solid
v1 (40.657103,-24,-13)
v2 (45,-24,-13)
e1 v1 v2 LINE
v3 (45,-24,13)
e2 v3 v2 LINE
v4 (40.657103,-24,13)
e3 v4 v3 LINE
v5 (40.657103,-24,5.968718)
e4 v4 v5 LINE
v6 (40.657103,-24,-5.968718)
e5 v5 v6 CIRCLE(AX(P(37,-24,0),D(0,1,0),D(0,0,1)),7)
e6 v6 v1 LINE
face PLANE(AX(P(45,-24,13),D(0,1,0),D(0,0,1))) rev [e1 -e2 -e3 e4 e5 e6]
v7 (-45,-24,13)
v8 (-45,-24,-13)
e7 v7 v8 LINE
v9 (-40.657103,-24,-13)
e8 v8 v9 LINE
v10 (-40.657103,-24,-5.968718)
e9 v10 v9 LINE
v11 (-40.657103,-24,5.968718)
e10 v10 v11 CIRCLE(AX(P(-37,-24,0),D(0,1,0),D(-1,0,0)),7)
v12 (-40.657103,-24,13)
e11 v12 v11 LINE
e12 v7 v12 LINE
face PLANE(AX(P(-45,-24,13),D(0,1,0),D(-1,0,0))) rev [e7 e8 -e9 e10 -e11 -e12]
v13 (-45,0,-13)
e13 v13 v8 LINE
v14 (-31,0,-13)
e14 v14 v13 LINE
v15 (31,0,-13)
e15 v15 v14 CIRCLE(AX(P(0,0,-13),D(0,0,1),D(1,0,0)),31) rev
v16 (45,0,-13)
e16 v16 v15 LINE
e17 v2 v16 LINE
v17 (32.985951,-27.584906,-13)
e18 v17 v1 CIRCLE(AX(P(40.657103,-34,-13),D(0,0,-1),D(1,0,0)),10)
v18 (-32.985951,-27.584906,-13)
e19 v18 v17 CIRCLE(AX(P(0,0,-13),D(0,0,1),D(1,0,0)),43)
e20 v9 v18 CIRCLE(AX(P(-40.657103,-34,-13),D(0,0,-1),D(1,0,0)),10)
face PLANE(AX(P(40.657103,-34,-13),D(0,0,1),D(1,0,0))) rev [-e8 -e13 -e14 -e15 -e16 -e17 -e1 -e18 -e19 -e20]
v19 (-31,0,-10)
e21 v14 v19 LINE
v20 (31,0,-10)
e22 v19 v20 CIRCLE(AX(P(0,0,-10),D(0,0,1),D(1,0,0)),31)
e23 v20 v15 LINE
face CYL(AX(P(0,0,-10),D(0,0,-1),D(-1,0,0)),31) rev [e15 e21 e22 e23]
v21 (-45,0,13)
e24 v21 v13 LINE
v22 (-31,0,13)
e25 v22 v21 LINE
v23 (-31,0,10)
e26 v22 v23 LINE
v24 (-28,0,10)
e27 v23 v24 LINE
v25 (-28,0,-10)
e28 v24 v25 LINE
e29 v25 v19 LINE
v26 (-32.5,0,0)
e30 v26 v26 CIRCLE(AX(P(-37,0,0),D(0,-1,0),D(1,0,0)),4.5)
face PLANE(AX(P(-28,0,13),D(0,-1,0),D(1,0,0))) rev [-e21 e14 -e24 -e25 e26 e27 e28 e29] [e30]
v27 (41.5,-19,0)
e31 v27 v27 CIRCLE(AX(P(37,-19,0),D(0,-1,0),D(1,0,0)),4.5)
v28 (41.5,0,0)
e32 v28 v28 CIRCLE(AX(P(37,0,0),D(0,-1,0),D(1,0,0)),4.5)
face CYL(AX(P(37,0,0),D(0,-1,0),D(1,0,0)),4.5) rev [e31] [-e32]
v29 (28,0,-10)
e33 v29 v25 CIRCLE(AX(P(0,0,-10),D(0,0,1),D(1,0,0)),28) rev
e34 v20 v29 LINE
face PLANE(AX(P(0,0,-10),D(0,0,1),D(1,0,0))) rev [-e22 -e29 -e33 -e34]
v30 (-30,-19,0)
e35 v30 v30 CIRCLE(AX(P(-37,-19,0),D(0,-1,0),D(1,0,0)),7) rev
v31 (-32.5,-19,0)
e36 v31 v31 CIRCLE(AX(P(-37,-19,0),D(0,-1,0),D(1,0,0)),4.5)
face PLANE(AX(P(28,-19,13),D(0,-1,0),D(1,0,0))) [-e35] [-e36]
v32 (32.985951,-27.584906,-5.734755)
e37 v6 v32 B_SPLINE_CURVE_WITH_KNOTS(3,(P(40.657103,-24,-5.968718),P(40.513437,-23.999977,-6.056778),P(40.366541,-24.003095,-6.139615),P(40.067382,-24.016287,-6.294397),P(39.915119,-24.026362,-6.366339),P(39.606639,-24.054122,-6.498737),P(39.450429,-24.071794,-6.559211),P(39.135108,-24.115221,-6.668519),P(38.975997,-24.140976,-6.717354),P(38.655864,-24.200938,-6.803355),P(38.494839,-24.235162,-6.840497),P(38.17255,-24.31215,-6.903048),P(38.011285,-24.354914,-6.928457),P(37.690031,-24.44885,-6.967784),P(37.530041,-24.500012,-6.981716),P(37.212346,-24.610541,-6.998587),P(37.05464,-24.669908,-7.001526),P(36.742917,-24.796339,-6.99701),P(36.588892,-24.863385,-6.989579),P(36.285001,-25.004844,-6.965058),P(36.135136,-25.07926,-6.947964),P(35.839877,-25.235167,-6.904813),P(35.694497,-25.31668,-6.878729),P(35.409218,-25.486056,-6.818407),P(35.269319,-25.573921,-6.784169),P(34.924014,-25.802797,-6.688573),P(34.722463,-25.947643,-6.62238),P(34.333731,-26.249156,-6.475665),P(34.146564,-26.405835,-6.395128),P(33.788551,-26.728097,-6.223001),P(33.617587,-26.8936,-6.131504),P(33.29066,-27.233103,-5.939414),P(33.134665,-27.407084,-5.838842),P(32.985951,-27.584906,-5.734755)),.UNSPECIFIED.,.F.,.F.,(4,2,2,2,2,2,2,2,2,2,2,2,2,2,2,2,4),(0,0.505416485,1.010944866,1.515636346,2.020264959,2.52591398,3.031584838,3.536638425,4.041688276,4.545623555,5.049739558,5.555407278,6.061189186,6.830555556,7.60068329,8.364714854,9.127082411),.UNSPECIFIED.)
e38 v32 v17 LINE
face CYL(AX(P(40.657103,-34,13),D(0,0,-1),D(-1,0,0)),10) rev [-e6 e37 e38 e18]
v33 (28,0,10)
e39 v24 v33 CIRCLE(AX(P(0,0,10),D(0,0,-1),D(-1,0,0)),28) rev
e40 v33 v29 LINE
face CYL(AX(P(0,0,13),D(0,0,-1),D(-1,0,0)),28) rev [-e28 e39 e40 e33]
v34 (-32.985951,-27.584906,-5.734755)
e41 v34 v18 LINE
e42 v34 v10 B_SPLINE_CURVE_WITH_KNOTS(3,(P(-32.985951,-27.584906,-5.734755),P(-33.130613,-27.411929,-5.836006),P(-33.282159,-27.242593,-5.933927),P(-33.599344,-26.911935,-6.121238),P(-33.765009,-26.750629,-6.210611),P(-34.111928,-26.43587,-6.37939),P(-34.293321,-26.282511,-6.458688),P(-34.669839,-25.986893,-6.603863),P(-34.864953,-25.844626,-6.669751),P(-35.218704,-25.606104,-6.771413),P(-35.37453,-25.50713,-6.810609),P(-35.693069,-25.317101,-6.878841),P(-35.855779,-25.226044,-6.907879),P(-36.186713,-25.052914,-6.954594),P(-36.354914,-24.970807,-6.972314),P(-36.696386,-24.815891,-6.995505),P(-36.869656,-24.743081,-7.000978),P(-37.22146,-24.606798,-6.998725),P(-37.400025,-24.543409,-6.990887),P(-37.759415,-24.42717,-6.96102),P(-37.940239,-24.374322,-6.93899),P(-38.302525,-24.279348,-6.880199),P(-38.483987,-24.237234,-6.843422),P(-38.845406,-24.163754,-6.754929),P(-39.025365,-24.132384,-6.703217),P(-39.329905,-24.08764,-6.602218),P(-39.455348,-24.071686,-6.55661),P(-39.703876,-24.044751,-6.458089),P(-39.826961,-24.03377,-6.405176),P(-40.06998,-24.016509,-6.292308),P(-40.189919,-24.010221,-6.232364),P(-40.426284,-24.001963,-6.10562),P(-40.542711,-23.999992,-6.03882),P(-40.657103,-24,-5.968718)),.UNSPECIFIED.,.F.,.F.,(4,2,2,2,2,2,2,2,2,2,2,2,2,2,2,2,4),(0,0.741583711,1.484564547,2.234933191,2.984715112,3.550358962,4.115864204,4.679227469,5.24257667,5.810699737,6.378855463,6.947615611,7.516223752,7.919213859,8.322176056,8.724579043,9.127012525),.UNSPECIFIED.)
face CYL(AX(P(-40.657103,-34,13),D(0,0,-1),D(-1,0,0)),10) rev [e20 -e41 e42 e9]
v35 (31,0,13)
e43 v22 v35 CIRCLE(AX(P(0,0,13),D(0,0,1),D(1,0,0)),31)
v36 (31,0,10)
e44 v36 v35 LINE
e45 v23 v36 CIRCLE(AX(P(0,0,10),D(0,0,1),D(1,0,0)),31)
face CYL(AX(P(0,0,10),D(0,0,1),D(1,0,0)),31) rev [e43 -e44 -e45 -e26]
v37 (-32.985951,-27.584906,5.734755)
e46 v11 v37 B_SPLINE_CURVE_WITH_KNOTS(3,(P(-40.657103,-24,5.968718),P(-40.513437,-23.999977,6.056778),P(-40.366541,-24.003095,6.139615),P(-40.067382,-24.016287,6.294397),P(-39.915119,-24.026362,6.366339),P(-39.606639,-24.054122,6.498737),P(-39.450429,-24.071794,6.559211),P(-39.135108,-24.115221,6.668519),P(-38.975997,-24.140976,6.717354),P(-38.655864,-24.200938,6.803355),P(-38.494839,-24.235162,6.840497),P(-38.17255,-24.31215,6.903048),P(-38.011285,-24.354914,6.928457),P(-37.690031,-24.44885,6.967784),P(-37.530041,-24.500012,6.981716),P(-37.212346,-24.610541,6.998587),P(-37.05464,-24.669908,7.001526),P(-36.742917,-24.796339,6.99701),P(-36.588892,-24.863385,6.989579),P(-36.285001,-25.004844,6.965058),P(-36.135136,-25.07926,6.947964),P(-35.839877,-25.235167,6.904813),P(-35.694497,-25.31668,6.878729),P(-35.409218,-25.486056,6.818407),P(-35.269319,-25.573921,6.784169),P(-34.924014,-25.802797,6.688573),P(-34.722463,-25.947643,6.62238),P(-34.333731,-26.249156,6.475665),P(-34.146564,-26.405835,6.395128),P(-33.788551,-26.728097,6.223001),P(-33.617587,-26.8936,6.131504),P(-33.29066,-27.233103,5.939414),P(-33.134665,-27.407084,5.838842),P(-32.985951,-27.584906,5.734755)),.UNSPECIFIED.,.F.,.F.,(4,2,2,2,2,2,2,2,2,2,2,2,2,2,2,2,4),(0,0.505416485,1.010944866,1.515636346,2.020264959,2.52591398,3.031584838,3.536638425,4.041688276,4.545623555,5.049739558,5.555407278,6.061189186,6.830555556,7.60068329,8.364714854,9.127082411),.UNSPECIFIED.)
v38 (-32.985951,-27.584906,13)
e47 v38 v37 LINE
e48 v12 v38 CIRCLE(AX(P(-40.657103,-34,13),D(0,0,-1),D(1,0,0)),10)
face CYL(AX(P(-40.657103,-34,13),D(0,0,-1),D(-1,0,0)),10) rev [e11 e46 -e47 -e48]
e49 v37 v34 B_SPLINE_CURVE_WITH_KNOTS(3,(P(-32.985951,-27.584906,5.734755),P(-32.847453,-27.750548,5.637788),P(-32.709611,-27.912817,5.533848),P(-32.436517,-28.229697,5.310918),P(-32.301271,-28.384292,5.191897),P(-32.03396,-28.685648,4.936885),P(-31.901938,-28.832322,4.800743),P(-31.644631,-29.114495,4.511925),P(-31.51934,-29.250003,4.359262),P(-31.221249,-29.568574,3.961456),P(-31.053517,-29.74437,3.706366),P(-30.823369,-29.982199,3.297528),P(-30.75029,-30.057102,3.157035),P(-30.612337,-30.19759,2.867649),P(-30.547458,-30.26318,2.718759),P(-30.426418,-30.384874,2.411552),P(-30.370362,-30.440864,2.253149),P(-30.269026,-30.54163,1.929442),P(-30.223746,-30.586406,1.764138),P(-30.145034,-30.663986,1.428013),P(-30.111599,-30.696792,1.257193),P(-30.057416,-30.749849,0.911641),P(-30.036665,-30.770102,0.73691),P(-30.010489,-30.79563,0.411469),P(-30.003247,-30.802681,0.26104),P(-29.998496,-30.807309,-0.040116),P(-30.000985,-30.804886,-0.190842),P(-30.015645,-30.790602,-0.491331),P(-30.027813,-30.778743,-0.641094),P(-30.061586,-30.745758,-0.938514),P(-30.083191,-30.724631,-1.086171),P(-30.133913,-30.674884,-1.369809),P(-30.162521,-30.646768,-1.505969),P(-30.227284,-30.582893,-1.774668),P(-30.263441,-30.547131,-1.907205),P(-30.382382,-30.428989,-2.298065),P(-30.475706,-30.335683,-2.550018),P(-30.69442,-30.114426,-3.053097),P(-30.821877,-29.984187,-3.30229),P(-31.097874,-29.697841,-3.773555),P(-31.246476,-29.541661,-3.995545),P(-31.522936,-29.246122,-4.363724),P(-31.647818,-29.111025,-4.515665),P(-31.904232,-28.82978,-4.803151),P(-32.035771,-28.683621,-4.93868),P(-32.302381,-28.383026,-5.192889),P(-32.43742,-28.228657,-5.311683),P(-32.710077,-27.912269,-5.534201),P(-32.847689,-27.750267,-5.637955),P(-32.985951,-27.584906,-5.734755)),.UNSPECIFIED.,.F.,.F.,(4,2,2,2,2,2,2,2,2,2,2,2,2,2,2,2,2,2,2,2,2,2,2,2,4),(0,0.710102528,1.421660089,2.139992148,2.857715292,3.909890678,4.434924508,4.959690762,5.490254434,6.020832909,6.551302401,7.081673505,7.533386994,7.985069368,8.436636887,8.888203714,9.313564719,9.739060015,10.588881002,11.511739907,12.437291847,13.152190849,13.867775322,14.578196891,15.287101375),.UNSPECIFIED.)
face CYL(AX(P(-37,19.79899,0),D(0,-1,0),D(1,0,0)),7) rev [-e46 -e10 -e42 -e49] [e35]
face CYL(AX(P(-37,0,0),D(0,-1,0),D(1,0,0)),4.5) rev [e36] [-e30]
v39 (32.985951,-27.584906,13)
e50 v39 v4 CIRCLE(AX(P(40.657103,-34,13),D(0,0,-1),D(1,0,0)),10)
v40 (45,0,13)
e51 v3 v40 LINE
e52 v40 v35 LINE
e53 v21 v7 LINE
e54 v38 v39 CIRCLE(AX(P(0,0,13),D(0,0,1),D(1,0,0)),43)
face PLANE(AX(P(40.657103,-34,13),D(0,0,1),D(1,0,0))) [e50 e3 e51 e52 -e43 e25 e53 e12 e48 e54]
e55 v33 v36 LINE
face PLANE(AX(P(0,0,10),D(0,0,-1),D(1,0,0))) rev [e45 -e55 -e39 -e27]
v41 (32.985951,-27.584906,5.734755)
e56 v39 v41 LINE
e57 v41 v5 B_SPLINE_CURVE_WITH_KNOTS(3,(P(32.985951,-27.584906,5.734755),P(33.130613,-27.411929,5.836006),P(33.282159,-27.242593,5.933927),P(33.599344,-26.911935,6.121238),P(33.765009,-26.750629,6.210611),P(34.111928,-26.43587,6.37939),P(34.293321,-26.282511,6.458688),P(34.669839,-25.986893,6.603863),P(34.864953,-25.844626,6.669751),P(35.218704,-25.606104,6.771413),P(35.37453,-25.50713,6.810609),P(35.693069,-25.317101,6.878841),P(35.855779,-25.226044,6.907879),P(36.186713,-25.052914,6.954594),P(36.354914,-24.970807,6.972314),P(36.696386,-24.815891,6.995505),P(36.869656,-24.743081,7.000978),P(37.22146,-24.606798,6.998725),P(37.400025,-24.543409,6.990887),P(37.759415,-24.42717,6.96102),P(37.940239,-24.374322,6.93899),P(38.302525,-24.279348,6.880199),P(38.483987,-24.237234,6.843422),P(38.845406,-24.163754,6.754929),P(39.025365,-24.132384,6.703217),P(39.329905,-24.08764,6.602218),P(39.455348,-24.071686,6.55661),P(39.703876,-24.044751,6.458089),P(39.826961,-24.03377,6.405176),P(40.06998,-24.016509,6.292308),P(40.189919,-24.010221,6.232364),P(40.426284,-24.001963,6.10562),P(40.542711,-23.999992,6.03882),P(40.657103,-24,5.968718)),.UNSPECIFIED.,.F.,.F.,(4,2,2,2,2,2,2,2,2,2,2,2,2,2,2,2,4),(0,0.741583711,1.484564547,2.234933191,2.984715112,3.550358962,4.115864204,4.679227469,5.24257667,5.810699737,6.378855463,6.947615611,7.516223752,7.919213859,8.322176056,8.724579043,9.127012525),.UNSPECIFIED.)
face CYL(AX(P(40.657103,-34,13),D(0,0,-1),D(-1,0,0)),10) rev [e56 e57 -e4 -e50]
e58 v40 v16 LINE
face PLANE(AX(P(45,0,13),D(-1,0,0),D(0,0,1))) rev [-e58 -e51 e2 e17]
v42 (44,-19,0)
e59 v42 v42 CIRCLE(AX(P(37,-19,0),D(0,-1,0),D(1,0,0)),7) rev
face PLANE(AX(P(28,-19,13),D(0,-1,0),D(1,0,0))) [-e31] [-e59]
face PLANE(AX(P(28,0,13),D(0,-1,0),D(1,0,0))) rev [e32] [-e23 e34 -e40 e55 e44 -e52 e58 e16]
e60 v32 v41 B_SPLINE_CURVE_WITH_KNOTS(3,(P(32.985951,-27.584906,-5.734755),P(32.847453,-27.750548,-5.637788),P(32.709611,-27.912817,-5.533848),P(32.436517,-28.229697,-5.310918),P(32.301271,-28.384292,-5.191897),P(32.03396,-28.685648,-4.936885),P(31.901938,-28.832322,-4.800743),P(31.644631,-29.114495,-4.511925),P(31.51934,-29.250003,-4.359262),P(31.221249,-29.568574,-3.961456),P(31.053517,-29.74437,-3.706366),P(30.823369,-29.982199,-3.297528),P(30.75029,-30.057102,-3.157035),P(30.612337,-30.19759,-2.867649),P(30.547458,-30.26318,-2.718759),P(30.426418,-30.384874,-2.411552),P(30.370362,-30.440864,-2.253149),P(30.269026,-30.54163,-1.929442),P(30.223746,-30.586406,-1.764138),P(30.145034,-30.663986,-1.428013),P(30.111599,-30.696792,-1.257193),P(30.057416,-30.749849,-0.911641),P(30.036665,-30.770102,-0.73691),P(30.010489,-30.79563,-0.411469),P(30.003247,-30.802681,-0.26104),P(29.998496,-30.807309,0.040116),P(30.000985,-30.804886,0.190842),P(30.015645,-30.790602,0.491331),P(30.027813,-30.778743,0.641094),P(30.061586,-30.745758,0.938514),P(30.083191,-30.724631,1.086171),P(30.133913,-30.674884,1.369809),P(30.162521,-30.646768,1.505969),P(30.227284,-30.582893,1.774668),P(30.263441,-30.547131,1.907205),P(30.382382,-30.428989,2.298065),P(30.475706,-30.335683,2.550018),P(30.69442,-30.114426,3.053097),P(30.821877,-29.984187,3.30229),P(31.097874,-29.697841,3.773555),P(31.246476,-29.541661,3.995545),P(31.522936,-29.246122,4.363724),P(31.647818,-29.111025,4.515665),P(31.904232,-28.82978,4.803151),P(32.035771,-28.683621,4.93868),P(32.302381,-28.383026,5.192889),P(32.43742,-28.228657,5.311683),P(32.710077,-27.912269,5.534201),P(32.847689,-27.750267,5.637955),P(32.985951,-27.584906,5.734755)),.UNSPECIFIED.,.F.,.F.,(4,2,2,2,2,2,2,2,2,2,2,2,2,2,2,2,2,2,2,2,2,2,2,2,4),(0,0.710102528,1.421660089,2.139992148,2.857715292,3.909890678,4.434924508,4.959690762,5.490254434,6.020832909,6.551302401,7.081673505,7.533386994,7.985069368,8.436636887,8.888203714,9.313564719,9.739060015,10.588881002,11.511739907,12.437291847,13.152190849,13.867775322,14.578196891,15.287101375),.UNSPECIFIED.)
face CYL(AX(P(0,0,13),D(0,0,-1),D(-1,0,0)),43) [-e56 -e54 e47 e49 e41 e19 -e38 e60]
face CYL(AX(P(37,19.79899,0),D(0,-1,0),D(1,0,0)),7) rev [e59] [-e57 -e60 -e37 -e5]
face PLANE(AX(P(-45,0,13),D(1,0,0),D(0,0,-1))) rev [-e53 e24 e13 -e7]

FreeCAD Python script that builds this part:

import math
import FreeCAD as App
import Part
import Sketcher

V = App.Vector

doc = App.newDocument("Part")
params = doc.addObject("Spreadsheet::Sheet", "Params")
for row, (alias, value) in enumerate([
    ("sketch1_radius", "10 mm"),
    ("sketch1_radius2", "43 mm"),
    ("sketch1_radius3", "28 mm"),
    ("sketch1_width", "17 mm"),
    ("sketch1_height", "24 mm"),
    ("pad1_length", "26 mm"),
    ("sketch2_diameter", "62 mm"),
    ("pocket1_length", "3 mm"),
    ("sketch3_diameter", "14 mm"),
    ("pocket2_length", "53.630789 mm"),
    ("pocket2_length2", "5 mm"),
    ("sketch4_diameter", "9 mm"),
], start=1):
    params.set(f"A{row}", alias)
    params.set(f"B{row}", "=" + value)
    params.setAlias(f"B{row}", alias)

body = doc.addObject("PartDesign::Body", "Body")

# Sketch on XY plane
sketch1 = body.newObject("Sketcher::SketchObject", "Sketch")
sketch1.AttachmentSupport = (doc.getObject("XY_Plane"), [""])
sketch1.MapMode = "FlatFace"
sketch1.addGeometry([
    Part.LineSegment(V(-28, 0, 0), V(-45, 0, 0)),  # 0
    Part.LineSegment(V(-45, 0, 0), V(-45, -24, 0)),  # 1
    Part.LineSegment(V(-45, -24, 0), V(-40.7, -24, 0)),  # 2
    Part.ArcOfCircle(Part.Circle(V(-40.7, -34, 0), V(0, 0, 1), 10), math.radians(40), math.radians(90)),  # 3
    Part.ArcOfCircle(Part.Circle(V(0, 0, 0), V(0, 0, 1), 43), math.radians(-140), math.radians(-40)),  # 4
    Part.ArcOfCircle(Part.Circle(V(40.7, -34, 0), V(0, 0, 1), 10), math.radians(90), math.radians(140)),  # 5
    Part.LineSegment(V(40.7, -24, 0), V(45, -24, 0)),  # 6
    Part.LineSegment(V(45, -24, 0), V(45, 0, 0)),  # 7
    Part.LineSegment(V(45, 0, 0), V(28, 0, 0)),  # 8
    Part.ArcOfCircle(Part.Circle(V(0, 0, 0), V(0, 0, 1), 28), math.radians(180), math.radians(360)),  # 9
], False)
sketch1.addConstraint([
    Sketcher.Constraint("Coincident", 0, 2, 1, 1),
    Sketcher.Constraint("Coincident", 1, 2, 2, 1),
    Sketcher.Constraint("Tangent", 2, 2, 3, 2),
    Sketcher.Constraint("Tangent", 3, 1, 4, 1),
    Sketcher.Constraint("Tangent", 4, 2, 5, 2),
    Sketcher.Constraint("Tangent", 5, 1, 6, 1),
    Sketcher.Constraint("Coincident", 6, 2, 7, 1),
    Sketcher.Constraint("Coincident", 7, 2, 8, 1),
    Sketcher.Constraint("Coincident", 8, 2, 9, 2),
    Sketcher.Constraint("Coincident", 9, 1, 0, 1),
    Sketcher.Constraint("Horizontal", 0),
    Sketcher.Constraint("Vertical", 1),
    Sketcher.Constraint("Horizontal", 2),
    Sketcher.Constraint("Horizontal", 6),
    Sketcher.Constraint("Vertical", 7),
    Sketcher.Constraint("Horizontal", 8),
    Sketcher.Constraint("Coincident", 4, 3, -1, 1),
    Sketcher.Constraint("Coincident", 9, 3, -1, 1),
    Sketcher.Constraint("Equal", 3, 5),
    Sketcher.Constraint("Symmetric", 0, 2, 7, 2, -1, 1),
    Sketcher.Constraint("PointOnObject", 0, 2, -1),
    Sketcher.Constraint("Horizontal", 3, 3, 5, 3),
    Sketcher.Constraint("Radius", 3, 10.0),
    Sketcher.Constraint("Radius", 4, 43.0),
    Sketcher.Constraint("Radius", 9, 28.0),
    Sketcher.Constraint("DistanceX", 0, 2, 0, 1, 17.0),
    Sketcher.Constraint("DistanceY", 1, 2, 1, 1, 24.0),
])
sketch1.setExpression("Constraints[22]", "Params.sketch1_radius")
sketch1.setExpression("Constraints[23]", "Params.sketch1_radius2")
sketch1.setExpression("Constraints[24]", "Params.sketch1_radius3")
sketch1.setExpression("Constraints[25]", "Params.sketch1_width")
sketch1.setExpression("Constraints[26]", "Params.sketch1_height")
pad1 = body.newObject("PartDesign::Pad", "Pad")
pad1.Profile = sketch1
pad1.setExpression("Length", "Params.pad1_length")
pad1.Midplane = True

# Sketch on XY plane
sketch2 = body.newObject("Sketcher::SketchObject", "Sketch001")
sketch2.AttachmentSupport = (doc.getObject("XY_Plane"), [""])
sketch2.MapMode = "FlatFace"
sketch2.AttachmentOffset = App.Placement(V(0, 0, -13), App.Rotation())
sketch2.addGeometry(Part.Circle(V(0, 0, 0), V(0, 0, 1), 31), False)
sketch2.addConstraint([
    Sketcher.Constraint("Coincident", 0, 3, -1, 1),
    Sketcher.Constraint("Diameter", 0, 62.0),
])
sketch2.setExpression("Constraints[1]", "Params.sketch2_diameter")
pocket1 = body.newObject("PartDesign::Pocket", "Pocket")
pocket1.Profile = sketch2
pocket1.setExpression("Length", "Params.pocket1_length")
pocket1.Reversed = True
doc.recompute()

mirrored = body.newObject("PartDesign::Mirrored", "Mirrored")
mirrored.Originals = [pocket1]
mirrored.MirrorPlane = (doc.getObject("XY_Plane"), [""])
body.Tip = mirrored

# Sketch on XZ plane
sketch3 = body.newObject("Sketcher::SketchObject", "Sketch002")
sketch3.AttachmentSupport = (doc.getObject("XZ_Plane"), [""])
sketch3.MapMode = "FlatFace"
sketch3.AttachmentOffset = App.Placement(V(0, 0, 24), App.Rotation())
sketch3.addGeometry([
    Part.Circle(V(-37, 0, 0), V(0, 0, 1), 7),
    Part.Circle(V(37, 0, 0), V(0, 0, 1), 7),
], False)
sketch3.addConstraint([
    Sketcher.Constraint("Equal", 0, 1),
    Sketcher.Constraint("Symmetric", 0, 3, 1, 3, -1, 1),
    Sketcher.Constraint("PointOnObject", 0, 3, -1),
    Sketcher.Constraint("Diameter", 0, 14.0),
    Sketcher.Constraint("DistanceX", 0, 3, -1, 1, 37.0),
])
sketch3.setExpression("Constraints[3]", "Params.sketch3_diameter")
pocket2 = body.newObject("PartDesign::Pocket", "Pocket001")
pocket2.Profile = sketch3
pocket2.Type = "TwoLengths"
pocket2.setExpression("Length", "Params.pocket2_length")
pocket2.setExpression("Length2", "Params.pocket2_length2")
pocket2.Reversed = True

# Sketch on XZ plane
sketch4 = body.newObject("Sketcher::SketchObject", "Sketch003")
sketch4.AttachmentSupport = (doc.getObject("XZ_Plane"), [""])
sketch4.MapMode = "FlatFace"
sketch4.AttachmentOffset = App.Placement(V(0, 0, 19), App.Rotation())
sketch4.addGeometry([
    Part.Circle(V(-37, 0, 0), V(0, 0, 1), 4.5),
    Part.Circle(V(37, 0, 0), V(0, 0, 1), 4.5),
], False)
sketch4.addConstraint([
    Sketcher.Constraint("Equal", 0, 1),
    Sketcher.Constraint("Symmetric", 0, 3, 1, 3, -1, 1),
    Sketcher.Constraint("PointOnObject", 0, 3, -1),
    Sketcher.Constraint("Diameter", 0, 9.0),
    Sketcher.Constraint("DistanceX", 0, 3, -1, 1, 37.0),
])
sketch4.setExpression("Constraints[3]", "Params.sketch4_diameter")
pocket3 = body.newObject("PartDesign::Pocket", "Pocket002")
pocket3.Profile = sketch4
pocket3.Type = "ThroughAll"

doc.recompute()
